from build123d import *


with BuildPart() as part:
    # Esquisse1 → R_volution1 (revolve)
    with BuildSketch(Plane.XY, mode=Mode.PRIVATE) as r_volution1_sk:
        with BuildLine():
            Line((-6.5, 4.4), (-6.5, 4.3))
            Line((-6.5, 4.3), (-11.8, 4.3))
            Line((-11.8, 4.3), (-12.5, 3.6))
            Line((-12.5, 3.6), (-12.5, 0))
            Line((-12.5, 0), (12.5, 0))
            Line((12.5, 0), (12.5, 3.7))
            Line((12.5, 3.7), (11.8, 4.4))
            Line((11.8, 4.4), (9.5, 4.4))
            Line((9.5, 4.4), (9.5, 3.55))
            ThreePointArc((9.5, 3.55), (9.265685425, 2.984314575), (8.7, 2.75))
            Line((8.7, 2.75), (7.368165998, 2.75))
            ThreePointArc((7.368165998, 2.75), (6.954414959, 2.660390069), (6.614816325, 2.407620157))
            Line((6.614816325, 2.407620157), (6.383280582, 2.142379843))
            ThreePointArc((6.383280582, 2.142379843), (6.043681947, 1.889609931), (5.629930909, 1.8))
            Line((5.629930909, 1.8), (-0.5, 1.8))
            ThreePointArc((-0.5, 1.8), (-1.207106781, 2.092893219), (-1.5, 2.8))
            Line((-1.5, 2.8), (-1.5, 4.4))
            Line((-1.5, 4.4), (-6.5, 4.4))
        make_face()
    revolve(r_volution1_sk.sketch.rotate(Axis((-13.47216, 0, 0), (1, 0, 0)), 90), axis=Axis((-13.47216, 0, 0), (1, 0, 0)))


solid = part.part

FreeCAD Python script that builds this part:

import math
import FreeCAD as App
import Part
import Sketcher

V = App.Vector
Q = App.Units.Quantity

doc = App.newDocument("Part")
body = doc.addObject("PartDesign::Body", "Body")

sketch1 = body.newObject("Sketcher::SketchObject", "Sketch")
sketch1.AttachmentSupport = (doc.getObject("XY_Plane"), [""])
sketch1.MapMode = "FlatFace"
sketch1.addGeometry(Part.LineSegment(V(-6.5, 4.4, 0), V(-6.5, 4.3, 0)), False)
sketch1.addGeometry(Part.LineSegment(V(-6.5, 4.3, 0), V(-11.8, 4.3, 0)), False)
sketch1.addGeometry(Part.LineSegment(V(-11.8, 4.3, 0), V(-12.5, 3.6, 0)), False)
sketch1.addGeometry(Part.LineSegment(V(-12.5, 3.6, 0), V(-12.5, 0, 0)), False)
sketch1.addGeometry(Part.LineSegment(V(-12.5, 0, 0), V(12.5, 0, 0)), False)
sketch1.addGeometry(Part.LineSegment(V(12.5, 0, 0), V(12.5, 3.7, 0)), False)
sketch1.addGeometry(Part.LineSegment(V(12.5, 3.7, 0), V(11.8, 4.4, 0)), False)
sketch1.addGeometry(Part.LineSegment(V(11.8, 4.4, 0), V(9.5, 4.4, 0)), False)
sketch1.addGeometry(Part.LineSegment(V(9.5, 4.4, 0), V(9.5, 3.55, 0)), False)
sketch1.addGeometry(Part.ArcOfCircle(Part.Circle(V(8.7, 3.55, 0), V(0, 0, 1), 0.8), math.radians(-90), math.radians(0)), False)
sketch1.addGeometry(Part.LineSegment(V(8.7, 2.75, 0), V(7.37, 2.75, 0)), False)
sketch1.addGeometry(Part.ArcOfCircle(Part.Circle(V(7.37, 1.75, 0), V(0, 0, 1), 1), math.radians(90), math.radians(139)), False)
sketch1.addGeometry(Part.LineSegment(V(6.61, 2.41, 0), V(6.38, 2.14, 0)), False)
sketch1.addGeometry(Part.ArcOfCircle(Part.Circle(V(5.63, 2.8, 0), V(0, 0, 1), 1), math.radians(-90), math.radians(-41)), False)
sketch1.addGeometry(Part.LineSegment(V(5.63, 1.8, 0), V(-0.5, 1.8, 0)), False)
sketch1.addGeometry(Part.ArcOfCircle(Part.Circle(V(-0.5, 2.8, 0), V(0, 0, 1), 1), math.radians(-180), math.radians(-90)), False)
sketch1.addGeometry(Part.LineSegment(V(-1.5, 2.8, 0), V(-1.5, 4.4, 0)), False)
sketch1.addGeometry(Part.LineSegment(V(-1.5, 4.4, 0), V(-6.5, 4.4, 0)), False)
sketch1.addConstraint(Sketcher.Constraint("Coincident", 0, 2, 1, 1))
sketch1.addConstraint(Sketcher.Constraint("Coincident", 1, 2, 2, 1))
sketch1.addConstraint(Sketcher.Constraint("Coincident", 2, 2, 3, 1))
sketch1.addConstraint(Sketcher.Constraint("Coincident", 3, 2, 4, 1))
sketch1.addConstraint(Sketcher.Constraint("Coincident", 4, 2, 5, 1))
sketch1.addConstraint(Sketcher.Constraint("Coincident", 5, 2, 6, 1))
sketch1.addConstraint(Sketcher.Constraint("Coincident", 6, 2, 7, 1))
sketch1.addConstraint(Sketcher.Constraint("Coincident", 7, 2, 8, 1))
sketch1.addConstraint(Sketcher.Constraint("Tangent", 8, 2, 9, 2))
sketch1.addConstraint(Sketcher.Constraint("Tangent", 9, 1, 10, 1))
sketch1.addConstraint(Sketcher.Constraint("Tangent", 10, 2, 11, 1))
sketch1.addConstraint(Sketcher.Constraint("Tangent", 11, 2, 12, 1))
sketch1.addConstraint(Sketcher.Constraint("Tangent", 12, 2, 13, 2))
sketch1.addConstraint(Sketcher.Constraint("Tangent", 13, 1, 14, 1))
sketch1.addConstraint(Sketcher.Constraint("Tangent", 14, 2, 15, 2))
sketch1.addConstraint(Sketcher.Constraint("Tangent", 15, 1, 16, 1))
sketch1.addConstraint(Sketcher.Constraint("Coincident", 16, 2, 17, 1))
sketch1.addConstraint(Sketcher.Constraint("Coincident", 17, 2, 0, 1))
sketch1.addConstraint(Sketcher.Constraint("Vertical", 0))
sketch1.addConstraint(Sketcher.Constraint("Horizontal", 1))
sketch1.addConstraint(Sketcher.Constraint("Vertical", 3))
sketch1.addConstraint(Sketcher.Constraint("Horizontal", 4))
sketch1.addConstraint(Sketcher.Constraint("Vertical", 5))
sketch1.addConstraint(Sketcher.Constraint("Horizontal", 7))
sketch1.addConstraint(Sketcher.Constraint("Vertical", 8))
sketch1.addConstraint(Sketcher.Constraint("Horizontal", 10))
sketch1.addConstraint(Sketcher.Constraint("Horizontal", 14))
sketch1.addConstraint(Sketcher.Constraint("Vertical", 16))
sketch1.addConstraint(Sketcher.Constraint("Horizontal", 17))
sketch1.addConstraint(Sketcher.Constraint("Equal", 11, 13))
sketch1.addConstraint(Sketcher.Constraint("Equal", 13, 15))
sketch1.addConstraint(Sketcher.Constraint("Symmetric", 3, 2, 4, 2, -1, 1))
sketch1.addConstraint(Sketcher.Constraint("Perpendicular", 2, 6))
sketch1.addConstraint(Sketcher.Constraint("Horizontal", 7, 2, 16, 2))
sketch1.addConstraint(Sketcher.Constraint("Equal", 2, 6))
sketch1.addConstraint(Sketcher.Constraint("Radius", 11, Q("1 mm")))
sketch1.addConstraint(Sketcher.Constraint("Radius", 9, Q("0.8 mm")))
sketch1.addConstraint(Sketcher.Constraint("DistanceX", 4, 1, 4, 2, Q("25 mm")))
sketch1.addConstraint(Sketcher.Constraint("DistanceX", 17, 2, 17, 1, Q("5 mm")))
sketch1.addConstraint(Sketcher.Constraint("Angle", 2, Q("-135 deg")))
sketch1.addConstraint(Sketcher.Constraint("DistanceX", 1, 2, 1, 1, Q("5.3 mm")))
sketch1.addConstraint(Sketcher.Constraint("DistanceX", 7, 2, 7, 1, Q("2.3 mm")))
sketch1.addConstraint(Sketcher.Constraint("DistanceY", 0, 2, 0, 1, Q("0.1 mm")))
sketch1.addConstraint(Sketcher.Constraint("DistanceY", 3, 2, 3, 1, Q("3.6 mm")))
sketch1.addConstraint(Sketcher.Constraint("DistanceY", 16, 1, 16, 2, Q("1.6 mm")))
sketch1.addConstraint(Sketcher.Constraint("DistanceX", 2, 2, 0, 2, Q("6 mm")))
sketch1.addConstraint(Sketcher.Constraint("DistanceY", 8, 2, 8, 1, Q("0.85 mm")))
sketch1.addConstraint(Sketcher.Constraint("DistanceX", 14, 2, 14, 1, Q("6.129931 mm")))
sketch1.addConstraint(Sketcher.Constraint("Distance", 12, Q("0.352081 mm")))
revolution = body.newObject("PartDesign::Revolution", "Revolution")
revolution.Profile = sketch1
revolution.ReferenceAxis = (sketch1, ["H_Axis"])
revolution.Angle = 360

doc.recompute()
